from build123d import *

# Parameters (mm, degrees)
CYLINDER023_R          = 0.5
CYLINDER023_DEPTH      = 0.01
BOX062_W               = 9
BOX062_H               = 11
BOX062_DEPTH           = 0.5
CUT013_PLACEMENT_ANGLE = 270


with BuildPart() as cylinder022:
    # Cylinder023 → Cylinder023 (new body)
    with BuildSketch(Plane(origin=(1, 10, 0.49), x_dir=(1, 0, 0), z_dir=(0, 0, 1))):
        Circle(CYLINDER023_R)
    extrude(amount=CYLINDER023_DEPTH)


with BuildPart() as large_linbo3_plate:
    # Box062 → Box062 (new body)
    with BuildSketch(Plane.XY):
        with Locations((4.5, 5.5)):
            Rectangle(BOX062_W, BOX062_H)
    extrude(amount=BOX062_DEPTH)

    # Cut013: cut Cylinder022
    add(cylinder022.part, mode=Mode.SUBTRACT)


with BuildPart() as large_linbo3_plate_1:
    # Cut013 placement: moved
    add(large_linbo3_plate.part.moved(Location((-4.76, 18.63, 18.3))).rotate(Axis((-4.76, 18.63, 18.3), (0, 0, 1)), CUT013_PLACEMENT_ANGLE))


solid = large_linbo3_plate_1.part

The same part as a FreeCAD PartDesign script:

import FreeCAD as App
import Part
import Sketcher
from FreeCAD import Vector
Q = App.Units.Quantity


def add_polygon(sketch, points):
    """Adds a closed chain of lines whose ends are joined by coincident constraints."""
    first, n = sketch.GeometryCount, len(points)
    for a, b in zip(points, points[1:] + points[:1]):
        sketch.addGeometry(Part.LineSegment(App.Vector(*a, 0), App.Vector(*b, 0)), False)
    for i in range(n):
        sketch.addConstraint(Sketcher.Constraint("Coincident", first + i, 2, first + (i + 1) % n, 1))

doc = App.newDocument("Part")
body = doc.addObject("PartDesign::Body", "Body")

# Sketch on XY plane
sketch1 = body.newObject("Sketcher::SketchObject", "Sketch")
sketch1.AttachmentSupport = (doc.getObject("XY_Plane"), [""])
sketch1.MapMode = "FlatFace"
sketch1.AttachmentOffset = App.Placement(Vector(0, 0, 0.49), App.Rotation())
sketch1.addGeometry(Part.Circle(Vector(1, 10, 0), Vector(0, 0, 1), 0.5), False)
sketch1.addConstraint([
    Sketcher.Constraint("Diameter", 0, Q("1 mm")),
    Sketcher.Constraint("DistanceX", -1, 1, 0, 3, Q("1 mm")),
    Sketcher.Constraint("DistanceY", -1, 1, 0, 3, Q("10 mm")),
])
pad1 = body.newObject("PartDesign::Pad", "Pad")
pad1.Profile = sketch1
pad1.Length = 0.01
body2 = doc.addObject("PartDesign::Body", "Body001")

# Sketch on XY plane
sketch2 = body2.newObject("Sketcher::SketchObject", "Sketch001")
sketch2.AttachmentSupport = (doc.getObject("XY_Plane001"), [""])
sketch2.MapMode = "FlatFace"
add_polygon(sketch2, [(0, 11), (0, 0), (9, 0), (9, 11)])  # lines 0-3
sketch2.addConstraint([
    Sketcher.Constraint("Vertical", 0),
    Sketcher.Constraint("Horizontal", 1),
    Sketcher.Constraint("Vertical", 2),
    Sketcher.Constraint("Horizontal", 3),
    Sketcher.Constraint("Coincident", 0, 2, -1, 1),
    Sketcher.Constraint("DistanceX", 1, 1, 1, 2, Q("9 mm")),
    Sketcher.Constraint("DistanceY", 0, 2, 0, 1, Q("11 mm")),
])
pad2 = body2.newObject("PartDesign::Pad", "Pad001")
pad2.Profile = sketch2
pad2.Length = 0.5
doc.recompute()

boolean = body2.newObject("PartDesign::Boolean", "Boolean")
boolean.Type = "Cut"
boolean.addObjects([body])
body3 = doc.addObject("PartDesign::Body", "Body002")
doc.recompute()

body2.Placement = App.Placement(Vector(-4.76, 18.63, 18.3), App.Rotation(Vector(0, 0, 1), 270))
boolean2 = body3.newObject("PartDesign::Boolean", "Boolean001")
boolean2.Type = "Fuse"
boolean2.addObjects([body2])

doc.recompute()
